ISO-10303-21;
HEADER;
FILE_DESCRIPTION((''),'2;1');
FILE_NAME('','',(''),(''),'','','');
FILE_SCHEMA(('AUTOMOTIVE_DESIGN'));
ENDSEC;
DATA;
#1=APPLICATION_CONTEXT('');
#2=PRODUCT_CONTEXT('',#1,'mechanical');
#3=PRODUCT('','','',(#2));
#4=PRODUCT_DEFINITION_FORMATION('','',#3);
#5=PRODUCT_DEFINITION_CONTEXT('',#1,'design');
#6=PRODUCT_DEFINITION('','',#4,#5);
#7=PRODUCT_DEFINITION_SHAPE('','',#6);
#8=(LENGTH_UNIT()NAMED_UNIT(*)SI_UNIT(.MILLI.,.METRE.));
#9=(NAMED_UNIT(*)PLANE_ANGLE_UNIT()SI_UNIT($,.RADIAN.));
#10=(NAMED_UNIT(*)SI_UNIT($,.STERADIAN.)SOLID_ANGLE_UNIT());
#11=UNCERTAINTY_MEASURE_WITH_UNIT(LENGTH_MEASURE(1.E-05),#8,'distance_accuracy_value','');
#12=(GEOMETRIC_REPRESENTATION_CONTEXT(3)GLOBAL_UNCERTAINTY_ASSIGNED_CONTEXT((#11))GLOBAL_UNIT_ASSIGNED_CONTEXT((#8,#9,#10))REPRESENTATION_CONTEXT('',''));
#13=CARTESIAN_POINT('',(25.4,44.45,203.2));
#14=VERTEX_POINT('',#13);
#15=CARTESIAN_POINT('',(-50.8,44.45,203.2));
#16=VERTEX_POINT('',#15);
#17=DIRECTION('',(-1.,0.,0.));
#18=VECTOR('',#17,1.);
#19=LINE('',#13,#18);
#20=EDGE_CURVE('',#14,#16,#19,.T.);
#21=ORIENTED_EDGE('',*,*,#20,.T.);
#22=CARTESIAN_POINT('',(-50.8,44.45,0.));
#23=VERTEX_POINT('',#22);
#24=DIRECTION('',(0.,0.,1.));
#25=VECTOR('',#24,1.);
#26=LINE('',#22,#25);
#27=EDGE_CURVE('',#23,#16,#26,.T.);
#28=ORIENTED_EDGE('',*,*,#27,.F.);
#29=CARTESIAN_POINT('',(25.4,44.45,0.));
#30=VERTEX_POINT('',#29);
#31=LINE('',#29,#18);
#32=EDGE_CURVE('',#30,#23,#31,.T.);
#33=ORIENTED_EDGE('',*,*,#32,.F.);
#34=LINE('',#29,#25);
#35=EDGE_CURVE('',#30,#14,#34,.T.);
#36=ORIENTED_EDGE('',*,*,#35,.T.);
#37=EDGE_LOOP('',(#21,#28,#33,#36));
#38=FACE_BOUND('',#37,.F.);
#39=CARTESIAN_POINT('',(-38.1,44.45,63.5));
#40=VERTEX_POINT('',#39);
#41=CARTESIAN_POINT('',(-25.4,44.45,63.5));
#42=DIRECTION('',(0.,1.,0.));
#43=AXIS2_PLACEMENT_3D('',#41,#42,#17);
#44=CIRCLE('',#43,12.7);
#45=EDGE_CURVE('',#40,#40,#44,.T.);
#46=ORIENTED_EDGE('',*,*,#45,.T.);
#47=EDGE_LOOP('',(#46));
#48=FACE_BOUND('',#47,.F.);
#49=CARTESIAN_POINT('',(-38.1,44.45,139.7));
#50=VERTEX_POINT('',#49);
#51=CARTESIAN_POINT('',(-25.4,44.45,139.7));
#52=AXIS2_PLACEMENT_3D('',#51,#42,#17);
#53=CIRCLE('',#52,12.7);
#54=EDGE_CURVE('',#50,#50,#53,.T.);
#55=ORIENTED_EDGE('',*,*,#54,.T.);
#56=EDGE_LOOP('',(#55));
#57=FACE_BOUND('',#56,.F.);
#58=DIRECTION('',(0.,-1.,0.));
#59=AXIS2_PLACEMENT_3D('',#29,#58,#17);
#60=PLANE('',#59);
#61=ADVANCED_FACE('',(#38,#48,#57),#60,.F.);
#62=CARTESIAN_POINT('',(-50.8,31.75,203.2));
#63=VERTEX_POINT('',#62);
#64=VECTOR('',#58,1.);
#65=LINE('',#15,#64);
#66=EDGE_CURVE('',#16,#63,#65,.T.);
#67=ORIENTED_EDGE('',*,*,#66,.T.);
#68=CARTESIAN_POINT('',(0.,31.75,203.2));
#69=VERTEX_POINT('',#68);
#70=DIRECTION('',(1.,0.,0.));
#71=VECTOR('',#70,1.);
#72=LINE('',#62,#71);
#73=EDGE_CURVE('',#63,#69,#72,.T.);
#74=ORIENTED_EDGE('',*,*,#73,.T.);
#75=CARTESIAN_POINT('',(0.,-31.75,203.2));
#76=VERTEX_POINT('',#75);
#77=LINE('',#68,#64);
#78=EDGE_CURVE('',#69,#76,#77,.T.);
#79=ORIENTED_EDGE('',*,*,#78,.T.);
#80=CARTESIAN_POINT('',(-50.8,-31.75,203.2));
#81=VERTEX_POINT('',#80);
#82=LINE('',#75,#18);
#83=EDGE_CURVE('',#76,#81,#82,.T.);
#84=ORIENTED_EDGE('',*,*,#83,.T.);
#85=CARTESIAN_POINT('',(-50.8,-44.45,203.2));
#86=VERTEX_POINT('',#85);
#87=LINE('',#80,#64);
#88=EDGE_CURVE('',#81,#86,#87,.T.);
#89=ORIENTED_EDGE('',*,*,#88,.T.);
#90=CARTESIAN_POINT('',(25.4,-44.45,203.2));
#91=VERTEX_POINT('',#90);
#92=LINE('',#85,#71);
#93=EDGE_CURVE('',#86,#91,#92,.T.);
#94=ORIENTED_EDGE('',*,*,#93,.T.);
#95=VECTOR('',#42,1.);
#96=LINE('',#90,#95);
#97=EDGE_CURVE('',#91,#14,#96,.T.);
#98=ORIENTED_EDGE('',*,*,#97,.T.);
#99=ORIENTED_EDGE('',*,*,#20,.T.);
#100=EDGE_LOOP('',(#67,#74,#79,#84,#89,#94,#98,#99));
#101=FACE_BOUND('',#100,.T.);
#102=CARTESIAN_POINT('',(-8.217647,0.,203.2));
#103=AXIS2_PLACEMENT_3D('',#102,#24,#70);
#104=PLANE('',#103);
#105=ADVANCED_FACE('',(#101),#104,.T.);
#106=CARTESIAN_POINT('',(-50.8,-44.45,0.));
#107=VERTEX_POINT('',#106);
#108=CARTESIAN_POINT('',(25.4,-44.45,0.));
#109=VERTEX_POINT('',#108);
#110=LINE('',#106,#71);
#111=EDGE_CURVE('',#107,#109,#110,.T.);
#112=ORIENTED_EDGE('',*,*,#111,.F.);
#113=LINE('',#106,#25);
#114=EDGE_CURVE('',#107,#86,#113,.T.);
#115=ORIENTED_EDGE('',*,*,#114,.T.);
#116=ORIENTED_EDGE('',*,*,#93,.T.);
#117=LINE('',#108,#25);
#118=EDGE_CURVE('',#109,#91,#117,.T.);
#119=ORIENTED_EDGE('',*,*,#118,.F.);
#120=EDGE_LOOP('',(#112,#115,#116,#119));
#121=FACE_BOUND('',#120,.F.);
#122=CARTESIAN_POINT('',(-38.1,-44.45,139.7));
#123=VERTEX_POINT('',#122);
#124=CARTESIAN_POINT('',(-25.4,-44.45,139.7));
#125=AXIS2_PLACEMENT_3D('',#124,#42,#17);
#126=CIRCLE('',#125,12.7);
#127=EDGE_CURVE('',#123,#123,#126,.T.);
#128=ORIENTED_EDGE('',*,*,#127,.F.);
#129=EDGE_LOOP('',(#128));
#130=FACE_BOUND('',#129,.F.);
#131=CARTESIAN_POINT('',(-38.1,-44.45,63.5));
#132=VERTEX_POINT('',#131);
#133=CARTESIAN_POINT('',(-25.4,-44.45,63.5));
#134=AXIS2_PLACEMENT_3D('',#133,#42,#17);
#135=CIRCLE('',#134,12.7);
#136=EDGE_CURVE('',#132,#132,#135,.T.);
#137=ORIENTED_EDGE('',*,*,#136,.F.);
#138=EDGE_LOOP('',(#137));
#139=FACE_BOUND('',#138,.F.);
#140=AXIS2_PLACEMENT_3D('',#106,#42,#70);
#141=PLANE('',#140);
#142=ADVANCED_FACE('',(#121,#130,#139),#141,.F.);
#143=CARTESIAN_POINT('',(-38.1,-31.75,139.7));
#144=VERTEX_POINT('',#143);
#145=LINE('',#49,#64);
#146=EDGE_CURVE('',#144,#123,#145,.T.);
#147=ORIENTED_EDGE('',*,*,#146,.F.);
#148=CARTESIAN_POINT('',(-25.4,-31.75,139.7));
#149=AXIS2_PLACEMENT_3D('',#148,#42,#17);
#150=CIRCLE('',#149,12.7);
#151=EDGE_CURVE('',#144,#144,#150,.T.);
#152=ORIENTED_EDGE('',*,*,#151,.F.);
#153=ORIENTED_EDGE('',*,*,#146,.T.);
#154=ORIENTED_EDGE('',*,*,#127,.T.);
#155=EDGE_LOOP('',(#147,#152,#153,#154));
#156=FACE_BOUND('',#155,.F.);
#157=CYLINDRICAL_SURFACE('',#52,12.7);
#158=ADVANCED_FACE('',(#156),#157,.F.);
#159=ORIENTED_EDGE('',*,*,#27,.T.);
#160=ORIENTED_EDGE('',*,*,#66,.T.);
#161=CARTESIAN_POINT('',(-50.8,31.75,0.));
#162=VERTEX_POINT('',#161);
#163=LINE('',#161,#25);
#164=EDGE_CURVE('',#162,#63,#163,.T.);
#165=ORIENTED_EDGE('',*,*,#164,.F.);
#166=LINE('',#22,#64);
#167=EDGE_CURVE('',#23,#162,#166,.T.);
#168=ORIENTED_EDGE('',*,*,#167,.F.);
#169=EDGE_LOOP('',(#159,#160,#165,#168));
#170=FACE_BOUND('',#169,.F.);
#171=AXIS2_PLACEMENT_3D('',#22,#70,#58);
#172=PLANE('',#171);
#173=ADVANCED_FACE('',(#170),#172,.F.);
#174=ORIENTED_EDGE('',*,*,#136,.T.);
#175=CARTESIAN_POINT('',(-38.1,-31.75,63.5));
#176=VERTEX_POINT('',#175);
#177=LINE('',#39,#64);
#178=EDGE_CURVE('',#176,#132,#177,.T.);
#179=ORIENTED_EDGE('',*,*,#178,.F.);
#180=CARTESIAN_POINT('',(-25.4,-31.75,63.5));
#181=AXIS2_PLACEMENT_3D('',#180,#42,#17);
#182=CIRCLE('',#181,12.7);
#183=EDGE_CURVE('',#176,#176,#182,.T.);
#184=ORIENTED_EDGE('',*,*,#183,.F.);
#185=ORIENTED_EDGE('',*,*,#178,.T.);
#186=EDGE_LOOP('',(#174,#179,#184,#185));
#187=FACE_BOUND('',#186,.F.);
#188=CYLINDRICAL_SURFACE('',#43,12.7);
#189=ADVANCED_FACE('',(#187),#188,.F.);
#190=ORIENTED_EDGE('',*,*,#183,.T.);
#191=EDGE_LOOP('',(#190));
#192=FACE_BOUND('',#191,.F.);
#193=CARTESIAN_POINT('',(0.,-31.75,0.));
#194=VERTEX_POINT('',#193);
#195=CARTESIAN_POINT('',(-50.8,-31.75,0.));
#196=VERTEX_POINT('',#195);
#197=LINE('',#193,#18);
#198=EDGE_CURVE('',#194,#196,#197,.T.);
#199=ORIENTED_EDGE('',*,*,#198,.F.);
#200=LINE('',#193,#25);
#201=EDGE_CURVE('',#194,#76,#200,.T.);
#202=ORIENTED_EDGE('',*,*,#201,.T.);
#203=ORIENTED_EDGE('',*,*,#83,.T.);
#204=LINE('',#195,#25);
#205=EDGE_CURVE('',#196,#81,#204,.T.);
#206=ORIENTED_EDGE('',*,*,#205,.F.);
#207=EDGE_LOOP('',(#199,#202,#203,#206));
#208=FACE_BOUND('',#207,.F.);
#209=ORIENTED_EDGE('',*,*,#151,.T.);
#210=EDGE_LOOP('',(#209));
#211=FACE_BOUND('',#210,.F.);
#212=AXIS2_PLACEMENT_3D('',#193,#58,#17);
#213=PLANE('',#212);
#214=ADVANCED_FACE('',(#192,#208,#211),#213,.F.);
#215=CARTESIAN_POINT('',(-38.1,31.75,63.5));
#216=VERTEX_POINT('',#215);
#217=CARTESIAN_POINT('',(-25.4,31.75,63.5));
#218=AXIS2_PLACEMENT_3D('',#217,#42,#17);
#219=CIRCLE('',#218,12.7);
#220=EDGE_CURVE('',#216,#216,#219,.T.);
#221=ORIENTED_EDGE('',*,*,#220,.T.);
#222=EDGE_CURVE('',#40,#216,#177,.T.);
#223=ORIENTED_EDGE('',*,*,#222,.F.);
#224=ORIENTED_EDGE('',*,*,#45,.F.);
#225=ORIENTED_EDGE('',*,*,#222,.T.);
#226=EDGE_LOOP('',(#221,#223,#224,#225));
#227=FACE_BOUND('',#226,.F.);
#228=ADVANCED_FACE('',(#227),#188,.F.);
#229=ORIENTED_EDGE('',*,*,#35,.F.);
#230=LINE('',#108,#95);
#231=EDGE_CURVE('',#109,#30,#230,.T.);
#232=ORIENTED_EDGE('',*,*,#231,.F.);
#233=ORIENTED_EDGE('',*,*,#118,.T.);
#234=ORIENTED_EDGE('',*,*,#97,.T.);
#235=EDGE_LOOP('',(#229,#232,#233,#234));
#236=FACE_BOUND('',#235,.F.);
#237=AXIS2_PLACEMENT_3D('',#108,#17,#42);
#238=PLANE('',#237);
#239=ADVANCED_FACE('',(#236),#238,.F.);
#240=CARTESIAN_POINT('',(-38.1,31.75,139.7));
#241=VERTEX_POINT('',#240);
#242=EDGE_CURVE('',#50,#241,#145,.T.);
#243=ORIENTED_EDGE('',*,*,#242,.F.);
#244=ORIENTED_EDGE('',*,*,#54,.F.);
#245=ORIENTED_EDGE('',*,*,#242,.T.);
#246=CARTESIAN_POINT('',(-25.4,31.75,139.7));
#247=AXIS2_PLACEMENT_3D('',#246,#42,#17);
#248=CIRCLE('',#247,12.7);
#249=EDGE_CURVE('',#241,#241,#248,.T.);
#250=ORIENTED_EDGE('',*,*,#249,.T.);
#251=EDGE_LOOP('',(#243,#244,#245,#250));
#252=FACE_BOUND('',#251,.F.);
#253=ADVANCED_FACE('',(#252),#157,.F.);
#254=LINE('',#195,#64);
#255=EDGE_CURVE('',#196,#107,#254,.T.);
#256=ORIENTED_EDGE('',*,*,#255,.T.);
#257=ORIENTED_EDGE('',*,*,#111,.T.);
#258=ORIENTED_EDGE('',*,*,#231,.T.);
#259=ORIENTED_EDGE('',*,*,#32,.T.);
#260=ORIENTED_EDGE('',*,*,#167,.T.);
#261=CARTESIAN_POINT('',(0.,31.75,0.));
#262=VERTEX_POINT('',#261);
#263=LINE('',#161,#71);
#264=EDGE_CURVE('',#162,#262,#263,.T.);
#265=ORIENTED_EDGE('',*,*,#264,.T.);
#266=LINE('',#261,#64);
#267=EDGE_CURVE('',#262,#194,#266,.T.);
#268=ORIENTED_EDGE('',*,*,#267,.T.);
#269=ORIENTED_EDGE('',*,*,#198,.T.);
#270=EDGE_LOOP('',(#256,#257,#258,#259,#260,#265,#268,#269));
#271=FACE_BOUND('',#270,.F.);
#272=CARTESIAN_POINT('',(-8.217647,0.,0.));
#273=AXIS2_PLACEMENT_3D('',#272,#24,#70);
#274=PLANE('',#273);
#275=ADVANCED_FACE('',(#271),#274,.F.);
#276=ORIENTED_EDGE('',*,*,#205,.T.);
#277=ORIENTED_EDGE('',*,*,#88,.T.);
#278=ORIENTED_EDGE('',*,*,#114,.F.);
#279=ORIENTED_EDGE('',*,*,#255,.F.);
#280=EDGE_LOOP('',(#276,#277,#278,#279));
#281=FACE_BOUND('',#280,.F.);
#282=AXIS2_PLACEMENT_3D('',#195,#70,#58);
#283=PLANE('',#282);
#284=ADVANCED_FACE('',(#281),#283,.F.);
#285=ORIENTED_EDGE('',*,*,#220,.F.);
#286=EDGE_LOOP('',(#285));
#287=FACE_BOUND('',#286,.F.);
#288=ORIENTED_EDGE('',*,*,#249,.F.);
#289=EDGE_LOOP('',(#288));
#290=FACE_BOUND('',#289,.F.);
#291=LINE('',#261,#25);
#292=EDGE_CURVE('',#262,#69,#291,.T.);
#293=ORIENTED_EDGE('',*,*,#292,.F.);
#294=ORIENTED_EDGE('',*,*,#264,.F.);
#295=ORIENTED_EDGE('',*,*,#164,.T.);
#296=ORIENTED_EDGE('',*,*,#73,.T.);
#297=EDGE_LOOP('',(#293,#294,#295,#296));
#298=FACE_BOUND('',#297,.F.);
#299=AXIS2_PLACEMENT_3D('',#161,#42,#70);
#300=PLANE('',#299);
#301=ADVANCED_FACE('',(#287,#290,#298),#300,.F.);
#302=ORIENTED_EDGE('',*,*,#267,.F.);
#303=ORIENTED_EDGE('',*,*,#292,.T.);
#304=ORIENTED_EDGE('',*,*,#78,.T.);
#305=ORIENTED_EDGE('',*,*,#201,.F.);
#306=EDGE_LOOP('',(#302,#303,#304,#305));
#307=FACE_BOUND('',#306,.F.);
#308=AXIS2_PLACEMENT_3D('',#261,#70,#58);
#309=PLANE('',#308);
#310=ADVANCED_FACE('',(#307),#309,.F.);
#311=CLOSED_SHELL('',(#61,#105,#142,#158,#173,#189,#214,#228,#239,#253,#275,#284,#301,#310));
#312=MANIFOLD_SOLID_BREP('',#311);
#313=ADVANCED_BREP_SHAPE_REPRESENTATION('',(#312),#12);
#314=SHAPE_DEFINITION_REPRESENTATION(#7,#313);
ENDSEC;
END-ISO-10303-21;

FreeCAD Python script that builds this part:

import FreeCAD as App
import Part
import Sketcher

V = App.Vector
Q = App.Units.Quantity

doc = App.newDocument("Part")
params = doc.addObject("Spreadsheet::Sheet", "Params")
for row, (alias, value) in enumerate([
    ("sketch1_width", "3 in"),
    ("sketch1_width2", "2 in"),
    ("sketch1_height", "0.5 in"),
    ("sketch1_height2", "2.5 in"),
    ("pad1_length", "8 in"),
    ("sketch2_diameter", "1 in"),
], start=1):
    params.set(f"A{row}", alias)
    params.set(f"B{row}", "=" + value)
    params.setAlias(f"B{row}", alias)

body = doc.addObject("PartDesign::Body", "Body")

# Sketch on XY plane
sketch1 = doc.addObject("Sketcher::SketchObject", "Sketch")
body.addObject(sketch1)
sketch1.AttachmentSupport = (doc.XY_Plane, [""])
sketch1.MapMode = "FlatFace"
sketch1.addGeometry(Part.LineSegment(V(25.4, 44.45, 0), V(-50.8, 44.45, 0)), False)
sketch1.addGeometry(Part.LineSegment(V(-50.8, 44.45, 0), V(-50.8, 31.75, 0)), False)
sketch1.addGeometry(Part.LineSegment(V(-50.8, 31.75, 0), V(0, 31.75, 0)), False)
sketch1.addGeometry(Part.LineSegment(V(0, 31.75, 0), V(0, -31.75, 0)), False)
sketch1.addGeometry(Part.LineSegment(V(0, -31.75, 0), V(-50.8, -31.75, 0)), False)
sketch1.addGeometry(Part.LineSegment(V(-50.8, -31.75, 0), V(-50.8, -44.45, 0)), False)
sketch1.addGeometry(Part.LineSegment(V(-50.8, -44.45, 0), V(25.4, -44.45, 0)), False)
sketch1.addGeometry(Part.LineSegment(V(25.4, -44.45, 0), V(25.4, 44.45, 0)), False)
sketch1.addConstraint(Sketcher.Constraint("Coincident", 0, 2, 1, 1))
sketch1.addConstraint(Sketcher.Constraint("Coincident", 1, 2, 2, 1))
sketch1.addConstraint(Sketcher.Constraint("Coincident", 2, 2, 3, 1))
sketch1.addConstraint(Sketcher.Constraint("Coincident", 3, 2, 4, 1))
sketch1.addConstraint(Sketcher.Constraint("Coincident", 4, 2, 5, 1))
sketch1.addConstraint(Sketcher.Constraint("Coincident", 5, 2, 6, 1))
sketch1.addConstraint(Sketcher.Constraint("Coincident", 6, 2, 7, 1))
sketch1.addConstraint(Sketcher.Constraint("Coincident", 7, 2, 0, 1))
sketch1.addConstraint(Sketcher.Constraint("Horizontal", 0))
sketch1.addConstraint(Sketcher.Constraint("Vertical", 1))
sketch1.addConstraint(Sketcher.Constraint("Horizontal", 2))
sketch1.addConstraint(Sketcher.Constraint("Vertical", 3))
sketch1.addConstraint(Sketcher.Constraint("Horizontal", 4))
sketch1.addConstraint(Sketcher.Constraint("Vertical", 5))
sketch1.addConstraint(Sketcher.Constraint("Horizontal", 6))
sketch1.addConstraint(Sketcher.Constraint("Vertical", 7))
sketch1.addConstraint(Sketcher.Constraint("Symmetric", 2, 2, 3, 2, -1, 1))
sketch1.addConstraint(Sketcher.Constraint("Symmetric", 0, 2, 5, 2, -1))
sketch1.addConstraint(Sketcher.Constraint("DistanceX", 0, 2, 0, 1, Q("3 in")))
sketch1.addConstraint(Sketcher.Constraint("DistanceX", 2, 1, 2, 2, Q("2 in")))
sketch1.addConstraint(Sketcher.Constraint("DistanceY", 1, 2, 1, 1, Q("0.5 in")))
sketch1.addConstraint(Sketcher.Constraint("DistanceY", 3, 2, 3, 1, Q("2.5 in")))
sketch1.setExpression("Constraints[18]", "Params.sketch1_width")
sketch1.setExpression("Constraints[19]", "Params.sketch1_width2")
sketch1.setExpression("Constraints[20]", "Params.sketch1_height")
sketch1.setExpression("Constraints[21]", "Params.sketch1_height2")
pad1 = doc.addObject("PartDesign::Pad", "Pad")
body.addObject(pad1)
pad1.Profile = sketch1
pad1.setExpression("Length", "Params.pad1_length")

# Sketch on XZ plane
sketch2 = doc.addObject("Sketcher::SketchObject", "Sketch001")
body.addObject(sketch2)
sketch2.AttachmentSupport = (doc.XZ_Plane, [""])
sketch2.MapMode = "FlatFace"
sketch2.AttachmentOffset = App.Placement(V(0, 0, -1.75 * 25.4), App.Rotation())
sketch2.addGeometry(Part.Circle(V(-25.4, 139.7, 0), V(0, 0, 1), 12.7), False)
sketch2.addGeometry(Part.Circle(V(-25.4, 63.5, 0), V(0, 0, 1), 12.7), False)
sketch2.addConstraint(Sketcher.Constraint("Equal", 0, 1))
sketch2.addConstraint(Sketcher.Constraint("Vertical", 0, 3, 1, 3))
sketch2.addConstraint(Sketcher.Constraint("Diameter", 0, Q("1 in")))
sketch2.addConstraint(Sketcher.Constraint("DistanceX", 0, 3, -1, 1, Q("1 in")))
sketch2.addConstraint(Sketcher.Constraint("DistanceY", 1, 3, 0, 3, Q("3 in")))
sketch2.addConstraint(Sketcher.Constraint("DistanceY", -1, 1, 0, 3, Q("5.5 in")))
sketch2.setExpression("Constraints[2]", "Params.sketch2_diameter")
pocket1 = doc.addObject("PartDesign::Pocket", "Pocket")
body.addObject(pocket1)
pocket1.Profile = sketch2
pocket1.Type = "ThroughAll"
pocket1.Reversed = True

doc.recompute()
